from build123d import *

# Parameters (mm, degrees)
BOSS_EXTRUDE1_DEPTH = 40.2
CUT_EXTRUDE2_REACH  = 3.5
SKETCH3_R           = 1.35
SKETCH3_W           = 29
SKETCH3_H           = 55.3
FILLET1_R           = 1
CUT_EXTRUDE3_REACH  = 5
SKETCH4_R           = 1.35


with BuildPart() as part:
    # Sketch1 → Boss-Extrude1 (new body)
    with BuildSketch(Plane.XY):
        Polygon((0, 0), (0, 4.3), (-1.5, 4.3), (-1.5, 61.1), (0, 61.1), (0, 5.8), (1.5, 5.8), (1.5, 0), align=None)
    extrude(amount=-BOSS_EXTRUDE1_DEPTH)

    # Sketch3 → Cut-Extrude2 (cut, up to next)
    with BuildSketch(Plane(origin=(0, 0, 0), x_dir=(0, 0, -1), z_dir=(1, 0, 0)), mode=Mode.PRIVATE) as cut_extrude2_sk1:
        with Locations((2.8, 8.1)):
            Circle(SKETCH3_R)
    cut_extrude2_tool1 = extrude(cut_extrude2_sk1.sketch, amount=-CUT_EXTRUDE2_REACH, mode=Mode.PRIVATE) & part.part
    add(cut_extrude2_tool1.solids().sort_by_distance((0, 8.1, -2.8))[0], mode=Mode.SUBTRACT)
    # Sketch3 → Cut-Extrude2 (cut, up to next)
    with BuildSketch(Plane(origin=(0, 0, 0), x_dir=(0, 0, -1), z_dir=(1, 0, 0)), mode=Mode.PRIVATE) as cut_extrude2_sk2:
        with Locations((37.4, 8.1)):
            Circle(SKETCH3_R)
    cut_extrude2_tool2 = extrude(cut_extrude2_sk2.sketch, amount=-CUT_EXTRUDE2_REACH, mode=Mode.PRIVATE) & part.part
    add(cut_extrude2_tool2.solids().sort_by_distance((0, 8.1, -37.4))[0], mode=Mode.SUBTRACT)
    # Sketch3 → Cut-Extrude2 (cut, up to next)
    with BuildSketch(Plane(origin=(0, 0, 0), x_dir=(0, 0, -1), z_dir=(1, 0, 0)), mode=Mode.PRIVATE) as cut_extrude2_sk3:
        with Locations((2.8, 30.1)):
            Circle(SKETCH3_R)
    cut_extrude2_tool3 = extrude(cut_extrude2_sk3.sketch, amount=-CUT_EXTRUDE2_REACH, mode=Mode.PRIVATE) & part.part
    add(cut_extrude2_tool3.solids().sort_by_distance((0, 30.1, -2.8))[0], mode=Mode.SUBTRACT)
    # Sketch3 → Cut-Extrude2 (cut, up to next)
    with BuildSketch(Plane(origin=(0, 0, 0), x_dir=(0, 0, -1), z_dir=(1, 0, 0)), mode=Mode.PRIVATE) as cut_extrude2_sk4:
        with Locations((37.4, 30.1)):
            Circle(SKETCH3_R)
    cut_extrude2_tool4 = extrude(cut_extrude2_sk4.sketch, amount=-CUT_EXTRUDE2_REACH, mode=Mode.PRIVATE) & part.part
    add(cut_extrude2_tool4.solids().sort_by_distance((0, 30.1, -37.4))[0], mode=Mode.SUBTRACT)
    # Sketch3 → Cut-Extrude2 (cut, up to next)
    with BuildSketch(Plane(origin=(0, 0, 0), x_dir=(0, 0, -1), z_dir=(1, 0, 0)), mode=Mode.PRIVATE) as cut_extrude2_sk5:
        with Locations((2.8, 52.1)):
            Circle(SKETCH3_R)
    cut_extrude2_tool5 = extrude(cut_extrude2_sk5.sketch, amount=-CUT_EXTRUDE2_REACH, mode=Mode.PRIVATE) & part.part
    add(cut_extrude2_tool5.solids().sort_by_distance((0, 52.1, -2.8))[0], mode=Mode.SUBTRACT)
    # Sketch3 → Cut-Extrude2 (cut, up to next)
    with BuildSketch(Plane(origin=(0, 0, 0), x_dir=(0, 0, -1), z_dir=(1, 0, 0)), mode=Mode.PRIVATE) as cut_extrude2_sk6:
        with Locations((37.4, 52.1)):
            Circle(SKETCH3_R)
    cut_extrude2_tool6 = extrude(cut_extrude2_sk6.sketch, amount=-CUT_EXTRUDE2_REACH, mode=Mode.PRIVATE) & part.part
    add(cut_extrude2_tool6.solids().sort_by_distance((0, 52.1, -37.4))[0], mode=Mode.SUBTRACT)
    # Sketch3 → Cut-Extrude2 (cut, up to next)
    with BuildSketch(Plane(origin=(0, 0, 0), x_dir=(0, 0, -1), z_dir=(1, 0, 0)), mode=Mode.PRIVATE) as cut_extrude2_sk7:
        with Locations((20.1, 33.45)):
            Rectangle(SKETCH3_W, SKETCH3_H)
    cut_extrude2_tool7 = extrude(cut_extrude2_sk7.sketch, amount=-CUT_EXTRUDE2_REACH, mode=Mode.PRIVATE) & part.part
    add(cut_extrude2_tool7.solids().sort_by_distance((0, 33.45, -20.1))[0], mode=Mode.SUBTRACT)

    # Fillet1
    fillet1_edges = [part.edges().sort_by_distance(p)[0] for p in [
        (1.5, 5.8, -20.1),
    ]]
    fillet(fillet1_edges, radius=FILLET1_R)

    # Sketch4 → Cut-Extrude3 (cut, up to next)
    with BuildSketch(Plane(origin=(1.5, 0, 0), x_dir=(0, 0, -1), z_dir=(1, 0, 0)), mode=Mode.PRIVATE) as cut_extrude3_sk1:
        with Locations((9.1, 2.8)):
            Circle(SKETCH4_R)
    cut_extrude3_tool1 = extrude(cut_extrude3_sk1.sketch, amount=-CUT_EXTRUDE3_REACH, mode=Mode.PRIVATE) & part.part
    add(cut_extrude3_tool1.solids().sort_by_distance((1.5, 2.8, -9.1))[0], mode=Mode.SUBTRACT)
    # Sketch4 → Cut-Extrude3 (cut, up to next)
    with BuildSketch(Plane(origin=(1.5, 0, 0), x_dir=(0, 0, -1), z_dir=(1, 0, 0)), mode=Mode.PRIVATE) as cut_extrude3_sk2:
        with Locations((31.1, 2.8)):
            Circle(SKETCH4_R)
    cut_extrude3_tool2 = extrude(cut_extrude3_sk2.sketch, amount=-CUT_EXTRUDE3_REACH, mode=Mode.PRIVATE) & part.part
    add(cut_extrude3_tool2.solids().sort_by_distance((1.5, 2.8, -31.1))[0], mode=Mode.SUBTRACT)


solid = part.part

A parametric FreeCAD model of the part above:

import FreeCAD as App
import Part
import Sketcher
Q = App.Units.Quantity


def edges_at(feature, points):
    """Names of the edges that pass closest to the given points."""
    edges = feature.Shape.Edges
    near = lambda p: min(range(len(edges)), key=lambda i: edges[i].distToShape(Part.Vertex(*p))[0])
    return sorted({f"Edge{near(p) + 1}" for p in points})

doc = App.newDocument("Part")
body = doc.addObject("PartDesign::Body", "Body")

# Sketch on XY plane
sketch1 = doc.addObject("Sketcher::SketchObject", "Sketch")
body.addObject(sketch1)
sketch1.AttachmentSupport = (doc.XY_Plane, [""])
sketch1.MapMode = "FlatFace"
sketch1.addGeometry([
    Part.LineSegment(App.Vector(0, 4.3, 0), App.Vector(0, 0, 0)),  # 0
    Part.LineSegment(App.Vector(0, 0, 0), App.Vector(1.5, 0, 0)),  # 1
    Part.LineSegment(App.Vector(1.5, 0, 0), App.Vector(1.5, 5.8, 0)),  # 2
    Part.LineSegment(App.Vector(1.5, 5.8, 0), App.Vector(0, 5.8, 0)),  # 3
    Part.LineSegment(App.Vector(0, 5.8, 0), App.Vector(0, 61.1, 0)),  # 4
    Part.LineSegment(App.Vector(0, 61.1, 0), App.Vector(-1.5, 61.1, 0)),  # 5
    Part.LineSegment(App.Vector(-1.5, 61.1, 0), App.Vector(-1.5, 4.3, 0)),  # 6
    Part.LineSegment(App.Vector(-1.5, 4.3, 0), App.Vector(0, 4.3, 0)),  # 7
], False)
sketch1.addConstraint([
    Sketcher.Constraint("Coincident", 0, 2, 1, 1),
    Sketcher.Constraint("Coincident", 1, 2, 2, 1),
    Sketcher.Constraint("Coincident", 2, 2, 3, 1),
    Sketcher.Constraint("Coincident", 3, 2, 4, 1),
    Sketcher.Constraint("Coincident", 4, 2, 5, 1),
    Sketcher.Constraint("Coincident", 5, 2, 6, 1),
    Sketcher.Constraint("Coincident", 6, 2, 7, 1),
    Sketcher.Constraint("Coincident", 7, 2, 0, 1),
    Sketcher.Constraint("Vertical", 0),
    Sketcher.Constraint("Horizontal", 1),
    Sketcher.Constraint("Vertical", 2),
    Sketcher.Constraint("Horizontal", 3),
    Sketcher.Constraint("Vertical", 4),
    Sketcher.Constraint("Horizontal", 5),
    Sketcher.Constraint("Vertical", 6),
    Sketcher.Constraint("Horizontal", 7),
    Sketcher.Constraint("Coincident", 0, 2, -1, 1),
    Sketcher.Constraint("PointOnObject", 3, 2, -2),
    Sketcher.Constraint("Equal", 3, 5),
    Sketcher.Constraint("DistanceX", 1, 1, 1, 2, Q("1.5 mm")),
    Sketcher.Constraint("DistanceY", 0, 2, 0, 1, Q("4.3 mm")),
    Sketcher.Constraint("DistanceY", 2, 1, 2, 2, Q("5.8 mm")),
    Sketcher.Constraint("DistanceY", 4, 1, 4, 2, Q("55.3 mm")),
])
pad1 = doc.addObject("PartDesign::Pad", "Pad")
body.addObject(pad1)
pad1.Profile = sketch1
pad1.Length = 40.2
pad1.Reversed = True

# Sketch on YZ plane
sketch2 = doc.addObject("Sketcher::SketchObject", "Sketch001")
body.addObject(sketch2)
sketch2.AttachmentSupport = (doc.YZ_Plane, [""])
sketch2.MapMode = "FlatFace"
sketch2.addGeometry(Part.Circle(App.Vector(8.1, -2.8, 0), App.Vector(0, 0, 1), 1.4), False)
sketch2.addConstraint([
    Sketcher.Constraint("Diameter", 0, Q("2.7 mm")),
    Sketcher.Constraint("DistanceX", -1, 1, 0, 3, Q("8.1 mm")),
    Sketcher.Constraint("DistanceY", 0, 3, -1, 1, Q("2.8 mm")),
])
pocket1 = doc.addObject("PartDesign::Pocket", "Pocket")
body.addObject(pocket1)
pocket1.Profile = sketch2
pocket1.Type = "UpToFirst"

# Sketch on YZ plane
sketch3 = doc.addObject("Sketcher::SketchObject", "Sketch002")
body.addObject(sketch3)
sketch3.AttachmentSupport = (doc.YZ_Plane, [""])
sketch3.MapMode = "FlatFace"
sketch3.addGeometry(Part.Circle(App.Vector(8.1, -37.4, 0), App.Vector(0, 0, 1), 1.4), False)
sketch3.addConstraint([
    Sketcher.Constraint("Diameter", 0, Q("2.7 mm")),
    Sketcher.Constraint("DistanceX", -1, 1, 0, 3, Q("8.1 mm")),
    Sketcher.Constraint("DistanceY", 0, 3, -1, 1, Q("37.4 mm")),
])
pocket2 = doc.addObject("PartDesign::Pocket", "Pocket001")
body.addObject(pocket2)
pocket2.Profile = sketch3
pocket2.Type = "UpToFirst"

# Sketch on YZ plane
sketch4 = doc.addObject("Sketcher::SketchObject", "Sketch003")
body.addObject(sketch4)
sketch4.AttachmentSupport = (doc.YZ_Plane, [""])
sketch4.MapMode = "FlatFace"
sketch4.addGeometry(Part.Circle(App.Vector(30.1, -2.8, 0), App.Vector(0, 0, 1), 1.4), False)
sketch4.addConstraint([
    Sketcher.Constraint("Diameter", 0, Q("2.7 mm")),
    Sketcher.Constraint("DistanceX", -1, 1, 0, 3, Q("30.1 mm")),
    Sketcher.Constraint("DistanceY", 0, 3, -1, 1, Q("2.8 mm")),
])
pocket3 = doc.addObject("PartDesign::Pocket", "Pocket002")
body.addObject(pocket3)
pocket3.Profile = sketch4
pocket3.Type = "UpToFirst"

# Sketch on YZ plane
sketch5 = doc.addObject("Sketcher::SketchObject", "Sketch004")
body.addObject(sketch5)
sketch5.AttachmentSupport = (doc.YZ_Plane, [""])
sketch5.MapMode = "FlatFace"
sketch5.addGeometry(Part.Circle(App.Vector(30.1, -37.4, 0), App.Vector(0, 0, 1), 1.4), False)
sketch5.addConstraint([
    Sketcher.Constraint("Diameter", 0, Q("2.7 mm")),
    Sketcher.Constraint("DistanceX", -1, 1, 0, 3, Q("30.1 mm")),
    Sketcher.Constraint("DistanceY", 0, 3, -1, 1, Q("37.4 mm")),
])
pocket4 = doc.addObject("PartDesign::Pocket", "Pocket003")
body.addObject(pocket4)
pocket4.Profile = sketch5
pocket4.Type = "UpToFirst"

# Sketch on YZ plane
sketch6 = doc.addObject("Sketcher::SketchObject", "Sketch005")
body.addObject(sketch6)
sketch6.AttachmentSupport = (doc.YZ_Plane, [""])
sketch6.MapMode = "FlatFace"
sketch6.addGeometry(Part.Circle(App.Vector(52.1, -2.8, 0), App.Vector(0, 0, 1), 1.4), False)
sketch6.addConstraint([
    Sketcher.Constraint("Diameter", 0, Q("2.7 mm")),
    Sketcher.Constraint("DistanceX", -1, 1, 0, 3, Q("52.1 mm")),
    Sketcher.Constraint("DistanceY", 0, 3, -1, 1, Q("2.8 mm")),
])
pocket5 = doc.addObject("PartDesign::Pocket", "Pocket004")
body.addObject(pocket5)
pocket5.Profile = sketch6
pocket5.Type = "UpToFirst"

# Sketch on YZ plane
sketch7 = doc.addObject("Sketcher::SketchObject", "Sketch006")
body.addObject(sketch7)
sketch7.AttachmentSupport = (doc.YZ_Plane, [""])
sketch7.MapMode = "FlatFace"
sketch7.addGeometry(Part.Circle(App.Vector(52.1, -37.4, 0), App.Vector(0, 0, 1), 1.4), False)
sketch7.addConstraint([
    Sketcher.Constraint("Diameter", 0, Q("2.7 mm")),
    Sketcher.Constraint("DistanceX", -1, 1, 0, 3, Q("52.1 mm")),
    Sketcher.Constraint("DistanceY", 0, 3, -1, 1, Q("37.4 mm")),
])
pocket6 = doc.addObject("PartDesign::Pocket", "Pocket005")
body.addObject(pocket6)
pocket6.Profile = sketch7
pocket6.Type = "UpToFirst"

# Sketch on YZ plane
sketch8 = doc.addObject("Sketcher::SketchObject", "Sketch007")
body.addObject(sketch8)
sketch8.AttachmentSupport = (doc.YZ_Plane, [""])
sketch8.MapMode = "FlatFace"
sketch8.addGeometry([
    Part.LineSegment(App.Vector(61, -6, 0), App.Vector(6, -6, 0)),
    Part.LineSegment(App.Vector(6, -6, 0), App.Vector(6, -35, 0)),
    Part.LineSegment(App.Vector(6, -35, 0), App.Vector(61, -35, 0)),
    Part.LineSegment(App.Vector(61, -35, 0), App.Vector(61, -6, 0)),
], False)
sketch8.addConstraint([
    Sketcher.Constraint("Coincident", 0, 2, 1, 1),
    Sketcher.Constraint("Coincident", 1, 2, 2, 1),
    Sketcher.Constraint("Coincident", 2, 2, 3, 1),
    Sketcher.Constraint("Coincident", 3, 2, 0, 1),
    Sketcher.Constraint("Horizontal", 0),
    Sketcher.Constraint("Vertical", 1),
    Sketcher.Constraint("Horizontal", 2),
    Sketcher.Constraint("Vertical", 3),
    Sketcher.Constraint("DistanceY", 1, 2, 1, 1, Q("29 mm")),
    Sketcher.Constraint("DistanceX", 0, 2, 0, 1, Q("55.3 mm")),
    Sketcher.Constraint("DistanceX", -1, 1, 0, 2, Q("5.8 mm")),
    Sketcher.Constraint("DistanceY", 0, 2, -1, 1, Q("5.6 mm")),
])
pocket7 = doc.addObject("PartDesign::Pocket", "Pocket006")
body.addObject(pocket7)
pocket7.Profile = sketch8
pocket7.Type = "UpToFirst"
doc.recompute()

fillet = doc.addObject("PartDesign::Fillet", "Fillet")
body.addObject(fillet)
fillet.Base = (pocket7, edges_at(pocket7, [(1.5, 5.8, -20.1)]))
fillet.Radius = 1

# Sketch on YZ plane
sketch9 = doc.addObject("Sketcher::SketchObject", "Sketch008")
body.addObject(sketch9)
sketch9.AttachmentSupport = (doc.YZ_Plane, [""])
sketch9.MapMode = "FlatFace"
sketch9.AttachmentOffset = App.Placement(App.Vector(0, 0, 1.5), App.Rotation())
sketch9.addGeometry(Part.Circle(App.Vector(2.8, -9.1, 0), App.Vector(0, 0, 1), 1.4), False)
sketch9.addConstraint([
    Sketcher.Constraint("Diameter", 0, Q("2.7 mm")),
    Sketcher.Constraint("DistanceX", -1, 1, 0, 3, Q("2.8 mm")),
    Sketcher.Constraint("DistanceY", 0, 3, -1, 1, Q("9.1 mm")),
])
pocket8 = doc.addObject("PartDesign::Pocket", "Pocket007")
body.addObject(pocket8)
pocket8.Profile = sketch9
pocket8.Type = "UpToFirst"

# Sketch on YZ plane
sketch10 = doc.addObject("Sketcher::SketchObject", "Sketch009")
body.addObject(sketch10)
sketch10.AttachmentSupport = (doc.YZ_Plane, [""])
sketch10.MapMode = "FlatFace"
sketch10.AttachmentOffset = App.Placement(App.Vector(0, 0, 1.5), App.Rotation())
sketch10.addGeometry(Part.Circle(App.Vector(2.8, -31.1, 0), App.Vector(0, 0, 1), 1.4), False)
sketch10.addConstraint([
    Sketcher.Constraint("Diameter", 0, Q("2.7 mm")),
    Sketcher.Constraint("DistanceX", -1, 1, 0, 3, Q("2.8 mm")),
    Sketcher.Constraint("DistanceY", 0, 3, -1, 1, Q("31.1 mm")),
])
pocket9 = doc.addObject("PartDesign::Pocket", "Pocket008")
body.addObject(pocket9)
pocket9.Profile = sketch10
pocket9.Type = "UpToFirst"

doc.recompute()
